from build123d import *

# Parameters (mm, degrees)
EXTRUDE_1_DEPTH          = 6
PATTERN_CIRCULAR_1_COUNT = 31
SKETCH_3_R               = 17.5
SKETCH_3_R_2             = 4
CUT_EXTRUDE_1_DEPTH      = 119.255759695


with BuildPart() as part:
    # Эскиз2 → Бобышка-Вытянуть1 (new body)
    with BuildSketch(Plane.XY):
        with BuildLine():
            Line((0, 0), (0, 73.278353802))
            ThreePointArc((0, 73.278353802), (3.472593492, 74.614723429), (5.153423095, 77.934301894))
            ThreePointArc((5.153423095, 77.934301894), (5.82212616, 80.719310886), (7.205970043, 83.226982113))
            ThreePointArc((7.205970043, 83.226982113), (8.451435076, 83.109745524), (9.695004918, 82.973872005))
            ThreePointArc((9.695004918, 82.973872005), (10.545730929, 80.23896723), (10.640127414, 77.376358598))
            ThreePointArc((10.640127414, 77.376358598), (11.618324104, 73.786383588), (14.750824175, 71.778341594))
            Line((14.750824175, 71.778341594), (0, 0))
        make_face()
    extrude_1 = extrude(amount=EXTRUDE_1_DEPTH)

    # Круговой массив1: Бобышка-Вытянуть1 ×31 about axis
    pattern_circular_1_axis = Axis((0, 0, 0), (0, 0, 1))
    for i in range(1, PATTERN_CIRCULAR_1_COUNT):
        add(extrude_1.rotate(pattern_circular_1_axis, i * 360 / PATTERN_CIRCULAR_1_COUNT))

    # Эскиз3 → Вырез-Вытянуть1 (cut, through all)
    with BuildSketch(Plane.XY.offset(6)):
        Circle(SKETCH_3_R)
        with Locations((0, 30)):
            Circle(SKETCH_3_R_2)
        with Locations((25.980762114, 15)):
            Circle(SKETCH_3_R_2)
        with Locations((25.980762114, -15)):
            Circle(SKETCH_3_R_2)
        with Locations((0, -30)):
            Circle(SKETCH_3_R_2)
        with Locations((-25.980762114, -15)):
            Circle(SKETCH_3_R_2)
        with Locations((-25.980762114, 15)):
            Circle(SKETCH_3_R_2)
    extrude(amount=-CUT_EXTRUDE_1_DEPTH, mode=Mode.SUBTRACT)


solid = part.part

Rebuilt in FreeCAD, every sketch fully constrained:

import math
import FreeCAD as App
import Part
import Sketcher

doc = App.newDocument("Part")
body = doc.addObject("PartDesign::Body", "Body")

# Sketch on XY plane
sketch1 = body.newObject("Sketcher::SketchObject", "Sketch")
sketch1.AttachmentSupport = (doc.getObject("XY_Plane"), [""])
sketch1.MapMode = "FlatFace"
sketch1.addGeometry(Part.LineSegment(App.Vector(0, 73.3, 0), App.Vector(0, 0, 0)), False)
sketch1.addGeometry(Part.LineSegment(App.Vector(0, 0, 0), App.Vector(14.8, 71.8, 0)), False)
sketch1.addGeometry(Part.ArcOfCircle(Part.Circle(App.Vector(15.8, 76.9, 0), App.Vector(0, 0, 1), 5.2), math.radians(174), math.radians(258)), False)
sketch1.addGeometry(Part.ArcOfCircle(Part.Circle(App.Vector(0, 78.5, 0), App.Vector(0, 0, 1), 10.7), math.radians(-6), math.radians(25)), False)
sketch1.addGeometry(Part.ArcOfCircle(Part.Circle(App.Vector(0, 0, 0), App.Vector(0, 0, 1), 83.5), math.radians(83.34), math.radians(85.05)), False)
sketch1.addGeometry(Part.ArcOfCircle(Part.Circle(App.Vector(15.8, 76.9, 0), App.Vector(0, 0, 1), 10.7), math.radians(143), math.radians(174)), False)
sketch1.addGeometry(Part.ArcOfCircle(Part.Circle(App.Vector(0, 78.5, 0), App.Vector(0, 0, 1), 5.2), math.radians(-90), math.radians(-6)), False)
sketch1.addConstraint(Sketcher.Constraint("Coincident", 0, 2, 1, 1))
sketch1.addConstraint(Sketcher.Constraint("Coincident", 1, 2, 2, 2))
sketch1.addConstraint(Sketcher.Constraint("Tangent", 2, 1, 3, 1))
sketch1.addConstraint(Sketcher.Constraint("Coincident", 3, 2, 4, 1))
sketch1.addConstraint(Sketcher.Constraint("Coincident", 4, 2, 5, 1))
sketch1.addConstraint(Sketcher.Constraint("Tangent", 5, 2, 6, 2))
sketch1.addConstraint(Sketcher.Constraint("Coincident", 6, 1, 0, 1))
sketch1.addConstraint(Sketcher.Constraint("Vertical", 0))
sketch1.addConstraint(Sketcher.Constraint("Coincident", 4, 3, -1, 1))
sketch1.addConstraint(Sketcher.Constraint("Coincident", 0, 2, -1, 1))
sketch1.addConstraint(Sketcher.Constraint("Coincident", 5, 3, 2, 3))
sketch1.addConstraint(Sketcher.Constraint("Coincident", 6, 3, 3, 3))
sketch1.addConstraint(Sketcher.Constraint("Equal", 3, 5))
sketch1.addConstraint(Sketcher.Constraint("PointOnObject", 3, 3, -2))
sketch1.addConstraint(Sketcher.Constraint("Radius", 2, 5.18))
sketch1.addConstraint(Sketcher.Constraint("Radius", 3, 10.695))
sketch1.addConstraint(Sketcher.Constraint("Radius", 4, 83.538352))
sketch1.addConstraint(Sketcher.Constraint("DistanceY", -1, 1, 5, 2, 77.934302))
sketch1.addConstraint(Sketcher.Constraint("DistanceY", 0, 2, 0, 1, 73.278354))
sketch1.addConstraint(Sketcher.Constraint("DistanceY", -1, 1, 1, 2, 71.778342))
pad1 = body.newObject("PartDesign::Pad", "Pad")
pad1.Profile = sketch1
pad1.Length = 6
doc.recompute()

polarpattern = body.newObject("PartDesign::PolarPattern", "PolarPattern")
polarpattern.Originals = [pad1]
polarpattern.Axis = (doc.getObject("Z_Axis"), [""])
polarpattern.Angle = 360
polarpattern.Occurrences = 31
body.Tip = polarpattern

# Sketch on XY plane
sketch2 = body.newObject("Sketcher::SketchObject", "Sketch001")
sketch2.AttachmentSupport = (doc.getObject("XY_Plane"), [""])
sketch2.MapMode = "FlatFace"
sketch2.AttachmentOffset = App.Placement(App.Vector(0, 0, 6), App.Rotation())
sketch2.addGeometry(Part.Circle(App.Vector(0, 0, 0), App.Vector(0, 0, 1), 17.5), False)
sketch2.addGeometry(Part.Circle(App.Vector(0, 30, 0), App.Vector(0, 0, 1), 4), False)
sketch2.addGeometry(Part.Circle(App.Vector(26, 15, 0), App.Vector(0, 0, 1), 4), False)
sketch2.addGeometry(Part.Circle(App.Vector(26, -15, 0), App.Vector(0, 0, 1), 4), False)
sketch2.addGeometry(Part.Circle(App.Vector(0, -30, 0), App.Vector(0, 0, 1), 4), False)
sketch2.addGeometry(Part.Circle(App.Vector(-26, -15, 0), App.Vector(0, 0, 1), 4), False)
sketch2.addGeometry(Part.Circle(App.Vector(-26, 15, 0), App.Vector(0, 0, 1), 4), False)
sketch2.addConstraint(Sketcher.Constraint("Coincident", 0, 3, -1, 1))
sketch2.addConstraint(Sketcher.Constraint("Equal", 1, 2))
sketch2.addConstraint(Sketcher.Constraint("Equal", 2, 3))
sketch2.addConstraint(Sketcher.Constraint("Equal", 3, 4))
sketch2.addConstraint(Sketcher.Constraint("Equal", 4, 5))
sketch2.addConstraint(Sketcher.Constraint("Equal", 5, 6))
sketch2.addConstraint(Sketcher.Constraint("Symmetric", 1, 3, 4, 3, -1, 1))
sketch2.addConstraint(Sketcher.Constraint("Symmetric", 2, 3, 5, 3, -1, 1))
sketch2.addConstraint(Sketcher.Constraint("Symmetric", 3, 3, 6, 3, -1, 1))
sketch2.addConstraint(Sketcher.Constraint("Symmetric", 3, 3, 5, 3, -2))
sketch2.addConstraint(Sketcher.Constraint("PointOnObject", 1, 3, -2))
sketch2.addConstraint(Sketcher.Constraint("Diameter", 0, 35.0))
sketch2.addConstraint(Sketcher.Constraint("Diameter", 1, 8.0))
sketch2.addConstraint(Sketcher.Constraint("DistanceY", -1, 1, 1, 3, 30.0))
sketch2.addConstraint(Sketcher.Constraint("DistanceY", -1, 1, 2, 3, 15.0))
sketch2.addConstraint(Sketcher.Constraint("DistanceX", -1, 1, 2, 3, 25.980762))
pocket1 = body.newObject("PartDesign::Pocket", "Pocket")
pocket1.Profile = sketch2
pocket1.Type = "ThroughAll"

doc.recompute()
